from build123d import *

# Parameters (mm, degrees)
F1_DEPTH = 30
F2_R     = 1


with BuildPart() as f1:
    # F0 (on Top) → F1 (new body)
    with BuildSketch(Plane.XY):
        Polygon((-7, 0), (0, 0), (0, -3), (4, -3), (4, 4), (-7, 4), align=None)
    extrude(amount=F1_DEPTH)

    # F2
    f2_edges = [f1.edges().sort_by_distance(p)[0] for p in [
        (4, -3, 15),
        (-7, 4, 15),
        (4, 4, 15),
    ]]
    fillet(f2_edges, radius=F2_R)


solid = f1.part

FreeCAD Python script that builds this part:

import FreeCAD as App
import Part
import Sketcher

V = App.Vector
Q = App.Units.Quantity


def edges_at(feature, points):
    """Names of the edges that pass closest to the given points."""
    edges = feature.Shape.Edges
    near = lambda p: min(range(len(edges)), key=lambda i: edges[i].distToShape(Part.Vertex(*p))[0])
    return sorted({f"Edge{near(p) + 1}" for p in points})

doc = App.newDocument("Part")
params = doc.addObject("Spreadsheet::Sheet", "Params")
for row, (alias, value) in enumerate([
    ("sketch1_width", "7 mm"),
    ("sketch1_width2", "4 mm"),
    ("pad1_length", "30 mm"),
    ("fillet_radius", "1 mm"),
], start=1):
    params.set(f"A{row}", alias)
    params.set(f"B{row}", "=" + value)
    params.setAlias(f"B{row}", alias)

body = doc.addObject("PartDesign::Body", "Body")

# Sketch on XY plane
sketch1 = body.newObject("Sketcher::SketchObject", "Sketch")
sketch1.AttachmentSupport = (doc.getObject("XY_Plane"), [""])
sketch1.MapMode = "FlatFace"
sketch1.addGeometry([
    Part.LineSegment(V(-7, 0, 0), V(0, 0, 0)),  # 0
    Part.LineSegment(V(0, 0, 0), V(0, -3, 0)),  # 1
    Part.LineSegment(V(0, -3, 0), V(4, -3, 0)),  # 2
    Part.LineSegment(V(4, -3, 0), V(4, 4, 0)),  # 3
    Part.LineSegment(V(4, 4, 0), V(-7, 4, 0)),  # 4
    Part.LineSegment(V(-7, 4, 0), V(-7, 0, 0)),  # 5
], False)
sketch1.addConstraint([
    Sketcher.Constraint("Coincident", 0, 2, 1, 1),
    Sketcher.Constraint("Coincident", 1, 2, 2, 1),
    Sketcher.Constraint("Coincident", 2, 2, 3, 1),
    Sketcher.Constraint("Coincident", 3, 2, 4, 1),
    Sketcher.Constraint("Coincident", 4, 2, 5, 1),
    Sketcher.Constraint("Coincident", 5, 2, 0, 1),
    Sketcher.Constraint("Horizontal", 0),
    Sketcher.Constraint("Vertical", 1),
    Sketcher.Constraint("Horizontal", 2),
    Sketcher.Constraint("Vertical", 3),
    Sketcher.Constraint("Horizontal", 4),
    Sketcher.Constraint("Vertical", 5),
    Sketcher.Constraint("Coincident", 0, 2, -1, 1),
    Sketcher.Constraint("Equal", 0, 3),
    Sketcher.Constraint("Equal", 2, 5),
    Sketcher.Constraint("DistanceX", 0, 1, 0, 2, Q("7 mm")),
    Sketcher.Constraint("DistanceX", 2, 1, 2, 2, Q("4 mm")),
])
sketch1.setExpression("Constraints[15]", "Params.sketch1_width")
sketch1.setExpression("Constraints[16]", "Params.sketch1_width2")
pad1 = body.newObject("PartDesign::Pad", "Pad")
pad1.Profile = sketch1
pad1.setExpression("Length", "Params.pad1_length")
doc.recompute()

fillet = body.newObject("PartDesign::Fillet", "Fillet")
fillet.Base = (pad1, edges_at(pad1, [(4, -3, 15), (-7, 4, 15), (4, 4, 15)]))
fillet.setExpression("Radius", "Params.fillet_radius")

doc.recompute()
